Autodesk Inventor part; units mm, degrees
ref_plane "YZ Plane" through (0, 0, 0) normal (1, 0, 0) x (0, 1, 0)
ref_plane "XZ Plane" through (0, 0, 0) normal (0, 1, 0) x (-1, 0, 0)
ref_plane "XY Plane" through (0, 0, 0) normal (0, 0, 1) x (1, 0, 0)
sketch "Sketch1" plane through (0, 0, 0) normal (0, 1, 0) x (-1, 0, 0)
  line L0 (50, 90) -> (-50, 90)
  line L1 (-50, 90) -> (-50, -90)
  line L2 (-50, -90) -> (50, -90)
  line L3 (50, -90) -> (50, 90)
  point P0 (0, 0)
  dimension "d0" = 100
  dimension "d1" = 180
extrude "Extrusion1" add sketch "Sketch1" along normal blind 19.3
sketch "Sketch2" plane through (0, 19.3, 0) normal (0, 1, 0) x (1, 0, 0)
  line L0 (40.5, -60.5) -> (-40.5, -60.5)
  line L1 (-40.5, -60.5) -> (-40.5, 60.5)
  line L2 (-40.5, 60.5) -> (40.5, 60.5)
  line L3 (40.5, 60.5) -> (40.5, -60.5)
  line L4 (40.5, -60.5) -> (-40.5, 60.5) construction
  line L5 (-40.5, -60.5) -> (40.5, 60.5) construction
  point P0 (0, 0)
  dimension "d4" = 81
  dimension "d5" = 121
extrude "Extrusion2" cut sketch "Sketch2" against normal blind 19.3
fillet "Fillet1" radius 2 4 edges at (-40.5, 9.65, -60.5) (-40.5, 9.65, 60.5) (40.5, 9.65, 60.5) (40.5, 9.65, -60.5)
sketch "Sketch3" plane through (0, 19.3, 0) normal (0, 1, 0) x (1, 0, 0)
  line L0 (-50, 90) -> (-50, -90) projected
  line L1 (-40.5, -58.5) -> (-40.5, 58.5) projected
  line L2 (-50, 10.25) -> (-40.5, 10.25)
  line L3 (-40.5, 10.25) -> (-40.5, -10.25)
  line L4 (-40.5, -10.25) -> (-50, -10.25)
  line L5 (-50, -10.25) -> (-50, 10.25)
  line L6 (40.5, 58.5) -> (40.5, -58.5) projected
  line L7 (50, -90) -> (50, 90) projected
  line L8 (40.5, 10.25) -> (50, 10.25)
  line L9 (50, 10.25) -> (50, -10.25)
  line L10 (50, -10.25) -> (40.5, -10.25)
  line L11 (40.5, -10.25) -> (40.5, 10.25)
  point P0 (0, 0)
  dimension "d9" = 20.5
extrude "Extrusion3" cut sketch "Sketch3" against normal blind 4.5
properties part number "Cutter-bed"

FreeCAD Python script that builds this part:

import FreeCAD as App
import Part
import Sketcher

V = App.Vector


def edges_at(feature, points):
    """Names of the edges that pass closest to the given points."""
    edges = feature.Shape.Edges
    near = lambda p: min(range(len(edges)), key=lambda i: edges[i].distToShape(Part.Vertex(*p))[0])
    return sorted({f"Edge{near(p) + 1}" for p in points})

doc = App.newDocument("Part")
params = doc.addObject("Spreadsheet::Sheet", "Params")
for row, (alias, value) in enumerate([
    ("sketch1_width", "100 mm"),
    ("sketch1_height", "180 mm"),
    ("pad1_length", "19.3 mm"),
    ("sketch2_width", "81 mm"),
    ("sketch2_height", "121 mm"),
    ("pocket1_length", "19.3 mm"),
    ("fillet_radius", "2 mm"),
    ("sketch3_height", "20.5 mm"),
    ("sketch3_width", "9.5 mm"),
    ("pocket2_length", "4.5 mm"),
], start=1):
    params.set(f"A{row}", alias)
    params.set(f"B{row}", "=" + value)
    params.setAlias(f"B{row}", alias)

body = doc.addObject("PartDesign::Body", "Body")

sketch1 = body.newObject("Sketcher::SketchObject", "Sketch")
sketch1.AttachmentSupport = (doc.getObject("XZ_Plane"), [""])
sketch1.MapMode = "FlatFace"
sketch1.addGeometry(Part.LineSegment(V(-50, -90, 0), V(-50, 90, 0)), False)
sketch1.addGeometry(Part.LineSegment(V(-50, 90, 0), V(50, 90, 0)), False)
sketch1.addGeometry(Part.LineSegment(V(50, 90, 0), V(50, -90, 0)), False)
sketch1.addGeometry(Part.LineSegment(V(50, -90, 0), V(-50, -90, 0)), False)
sketch1.addConstraint(Sketcher.Constraint("Coincident", 0, 2, 1, 1))
sketch1.addConstraint(Sketcher.Constraint("Coincident", 1, 2, 2, 1))
sketch1.addConstraint(Sketcher.Constraint("Coincident", 2, 2, 3, 1))
sketch1.addConstraint(Sketcher.Constraint("Coincident", 3, 2, 0, 1))
sketch1.addConstraint(Sketcher.Constraint("Vertical", 0))
sketch1.addConstraint(Sketcher.Constraint("Horizontal", 1))
sketch1.addConstraint(Sketcher.Constraint("Vertical", 2))
sketch1.addConstraint(Sketcher.Constraint("Horizontal", 3))
sketch1.addConstraint(Sketcher.Constraint("Symmetric", 0, 2, 2, 2, -1, 1))
sketch1.addConstraint(Sketcher.Constraint("DistanceX", 1, 1, 1, 2, 100.0))
sketch1.addConstraint(Sketcher.Constraint("DistanceY", 0, 1, 0, 2, 180.0))
sketch1.setExpression("Constraints[9]", "Params.sketch1_width")
sketch1.setExpression("Constraints[10]", "Params.sketch1_height")
pad1 = body.newObject("PartDesign::Pad", "Pad")
pad1.Profile = sketch1
pad1.setExpression("Length", "Params.pad1_length")
pad1.Reversed = True

sketch2 = body.newObject("Sketcher::SketchObject", "Sketch001")
sketch2.AttachmentSupport = (doc.getObject("XZ_Plane"), [""])
sketch2.MapMode = "FlatFace"
sketch2.AttachmentOffset = App.Placement(V(0, 0, -19.3), App.Rotation())
sketch2.addGeometry(Part.LineSegment(V(-40, 60, 0), V(40, 60, 0)), False)
sketch2.addGeometry(Part.LineSegment(V(40, 60, 0), V(40, -60, 0)), False)
sketch2.addGeometry(Part.LineSegment(V(40, -60, 0), V(-40, -60, 0)), False)
sketch2.addGeometry(Part.LineSegment(V(-40, -60, 0), V(-40, 60, 0)), False)
sketch2.addConstraint(Sketcher.Constraint("Coincident", 0, 2, 1, 1))
sketch2.addConstraint(Sketcher.Constraint("Coincident", 1, 2, 2, 1))
sketch2.addConstraint(Sketcher.Constraint("Coincident", 2, 2, 3, 1))
sketch2.addConstraint(Sketcher.Constraint("Coincident", 3, 2, 0, 1))
sketch2.addConstraint(Sketcher.Constraint("Horizontal", 0))
sketch2.addConstraint(Sketcher.Constraint("Vertical", 1))
sketch2.addConstraint(Sketcher.Constraint("Horizontal", 2))
sketch2.addConstraint(Sketcher.Constraint("Vertical", 3))
sketch2.addConstraint(Sketcher.Constraint("Symmetric", 0, 2, 2, 2, -1, 1))
sketch2.addConstraint(Sketcher.Constraint("DistanceX", 0, 1, 0, 2, 81.0))
sketch2.addConstraint(Sketcher.Constraint("DistanceY", 1, 2, 1, 1, 121.0))
sketch2.setExpression("Constraints[9]", "Params.sketch2_width")
sketch2.setExpression("Constraints[10]", "Params.sketch2_height")
pocket1 = body.newObject("PartDesign::Pocket", "Pocket")
pocket1.Profile = sketch2
pocket1.setExpression("Length", "Params.pocket1_length")
pocket1.Reversed = True
doc.recompute()

fillet = body.newObject("PartDesign::Fillet", "Fillet")
fillet.Base = (pocket1, edges_at(pocket1, [
    (-40.5, 9.65, -60.5),
    (-40.5, 9.65, 60.5),
    (40.5, 9.65, 60.5),
    (40.5, 9.65, -60.5),
]))
fillet.setExpression("Radius", "Params.fillet_radius")

sketch3 = body.newObject("Sketcher::SketchObject", "Sketch002")
sketch3.AttachmentSupport = (doc.getObject("XZ_Plane"), [""])
sketch3.MapMode = "FlatFace"
sketch3.AttachmentOffset = App.Placement(V(0, 0, -19.3), App.Rotation())
sketch3.addGeometry(Part.LineSegment(V(-40, -10, 0), V(-50, -10, 0)), False)
sketch3.addGeometry(Part.LineSegment(V(-50, -10, 0), V(-50, 10, 0)), False)
sketch3.addGeometry(Part.LineSegment(V(-50, 10, 0), V(-40, 10, 0)), False)
sketch3.addGeometry(Part.LineSegment(V(-40, 10, 0), V(-40, -10, 0)), False)
sketch3.addGeometry(Part.LineSegment(V(50, -10, 0), V(40, -10, 0)), False)
sketch3.addGeometry(Part.LineSegment(V(40, -10, 0), V(40, 10, 0)), False)
sketch3.addGeometry(Part.LineSegment(V(40, 10, 0), V(50, 10, 0)), False)
sketch3.addGeometry(Part.LineSegment(V(50, 10, 0), V(50, -10, 0)), False)
sketch3.addConstraint(Sketcher.Constraint("Coincident", 0, 2, 1, 1))
sketch3.addConstraint(Sketcher.Constraint("Coincident", 1, 2, 2, 1))
sketch3.addConstraint(Sketcher.Constraint("Coincident", 2, 2, 3, 1))
sketch3.addConstraint(Sketcher.Constraint("Coincident", 3, 2, 0, 1))
sketch3.addConstraint(Sketcher.Constraint("Coincident", 4, 2, 5, 1))
sketch3.addConstraint(Sketcher.Constraint("Coincident", 5, 2, 6, 1))
sketch3.addConstraint(Sketcher.Constraint("Coincident", 6, 2, 7, 1))
sketch3.addConstraint(Sketcher.Constraint("Coincident", 7, 2, 4, 1))
sketch3.addConstraint(Sketcher.Constraint("Horizontal", 0))
sketch3.addConstraint(Sketcher.Constraint("Vertical", 1))
sketch3.addConstraint(Sketcher.Constraint("Horizontal", 2))
sketch3.addConstraint(Sketcher.Constraint("Vertical", 3))
sketch3.addConstraint(Sketcher.Constraint("Horizontal", 4))
sketch3.addConstraint(Sketcher.Constraint("Vertical", 5))
sketch3.addConstraint(Sketcher.Constraint("Horizontal", 6))
sketch3.addConstraint(Sketcher.Constraint("Vertical", 7))
sketch3.addConstraint(Sketcher.Constraint("Symmetric", 2, 2, 4, 2, -1, 1))
sketch3.addConstraint(Sketcher.Constraint("Symmetric", 0, 2, 6, 2, -1, 1))
sketch3.addConstraint(Sketcher.Constraint("Horizontal", 3, 2, 4, 2))
sketch3.addConstraint(Sketcher.Constraint("DistanceY", 1, 1, 1, 2, 20.5))
sketch3.addConstraint(Sketcher.Constraint("DistanceX", 0, 2, 0, 1, 9.5))
sketch3.addConstraint(Sketcher.Constraint("DistanceX", 0, 2, -1, 1, 50.0))
sketch3.setExpression("Constraints[19]", "Params.sketch3_height")
sketch3.setExpression("Constraints[20]", "Params.sketch3_width")
pocket2 = body.newObject("PartDesign::Pocket", "Pocket001")
pocket2.Profile = sketch3
pocket2.setExpression("Length", "Params.pocket2_length")
pocket2.Reversed = True

doc.recompute()
